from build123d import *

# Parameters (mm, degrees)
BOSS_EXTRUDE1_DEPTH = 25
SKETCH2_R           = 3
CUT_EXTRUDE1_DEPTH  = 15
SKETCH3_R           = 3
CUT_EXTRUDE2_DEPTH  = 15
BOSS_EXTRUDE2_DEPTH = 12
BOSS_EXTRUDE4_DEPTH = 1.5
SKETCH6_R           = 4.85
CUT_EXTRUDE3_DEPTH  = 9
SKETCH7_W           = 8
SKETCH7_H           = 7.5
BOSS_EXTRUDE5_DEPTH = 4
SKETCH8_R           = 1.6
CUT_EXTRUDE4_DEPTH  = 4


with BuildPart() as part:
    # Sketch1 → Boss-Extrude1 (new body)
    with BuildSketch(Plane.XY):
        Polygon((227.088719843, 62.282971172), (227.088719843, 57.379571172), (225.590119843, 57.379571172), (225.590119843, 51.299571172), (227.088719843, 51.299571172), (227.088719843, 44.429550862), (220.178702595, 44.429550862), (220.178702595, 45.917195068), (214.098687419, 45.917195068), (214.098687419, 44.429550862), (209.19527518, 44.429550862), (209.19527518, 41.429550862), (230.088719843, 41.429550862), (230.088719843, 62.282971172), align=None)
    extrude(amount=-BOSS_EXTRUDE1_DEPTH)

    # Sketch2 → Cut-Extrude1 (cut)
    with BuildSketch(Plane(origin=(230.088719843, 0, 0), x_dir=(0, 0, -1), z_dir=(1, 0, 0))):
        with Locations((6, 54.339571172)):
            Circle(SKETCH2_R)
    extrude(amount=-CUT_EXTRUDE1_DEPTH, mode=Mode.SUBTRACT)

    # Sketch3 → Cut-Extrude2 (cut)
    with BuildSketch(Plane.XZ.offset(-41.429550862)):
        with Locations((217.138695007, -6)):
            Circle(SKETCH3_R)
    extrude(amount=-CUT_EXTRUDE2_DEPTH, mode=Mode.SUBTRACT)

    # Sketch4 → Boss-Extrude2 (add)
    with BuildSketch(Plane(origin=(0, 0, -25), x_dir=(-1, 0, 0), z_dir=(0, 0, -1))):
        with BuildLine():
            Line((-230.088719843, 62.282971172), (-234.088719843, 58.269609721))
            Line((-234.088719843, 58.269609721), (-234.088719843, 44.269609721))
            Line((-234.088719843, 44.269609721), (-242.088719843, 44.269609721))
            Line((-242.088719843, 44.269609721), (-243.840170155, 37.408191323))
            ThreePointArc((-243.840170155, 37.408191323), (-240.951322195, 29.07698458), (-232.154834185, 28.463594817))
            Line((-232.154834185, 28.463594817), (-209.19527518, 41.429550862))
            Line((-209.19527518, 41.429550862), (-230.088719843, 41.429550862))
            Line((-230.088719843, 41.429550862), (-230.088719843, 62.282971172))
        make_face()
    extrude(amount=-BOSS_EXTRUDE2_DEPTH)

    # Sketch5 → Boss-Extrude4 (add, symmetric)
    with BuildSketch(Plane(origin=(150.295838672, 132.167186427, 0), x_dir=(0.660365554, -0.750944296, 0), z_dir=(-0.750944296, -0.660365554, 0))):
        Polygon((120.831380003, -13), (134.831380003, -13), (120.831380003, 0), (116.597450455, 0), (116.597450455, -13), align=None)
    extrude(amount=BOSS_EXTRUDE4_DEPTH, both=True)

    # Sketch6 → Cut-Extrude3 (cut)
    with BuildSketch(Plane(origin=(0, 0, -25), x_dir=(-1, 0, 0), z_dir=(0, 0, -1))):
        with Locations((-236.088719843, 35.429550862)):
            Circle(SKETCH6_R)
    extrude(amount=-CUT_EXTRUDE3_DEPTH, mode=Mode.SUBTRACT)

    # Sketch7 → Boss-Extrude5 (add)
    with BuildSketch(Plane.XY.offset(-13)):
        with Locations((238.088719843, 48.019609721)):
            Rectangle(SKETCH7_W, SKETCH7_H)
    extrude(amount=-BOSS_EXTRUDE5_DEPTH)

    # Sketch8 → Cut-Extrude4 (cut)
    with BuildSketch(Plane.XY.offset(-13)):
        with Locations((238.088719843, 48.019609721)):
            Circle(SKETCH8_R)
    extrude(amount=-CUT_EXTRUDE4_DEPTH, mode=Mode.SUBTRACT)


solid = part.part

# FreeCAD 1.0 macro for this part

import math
import FreeCAD as App
import Part
import Sketcher
Q = App.Units.Quantity


def add_polygon(sketch, points):
    """Adds a closed chain of lines whose ends are joined by coincident constraints."""
    first, n = sketch.GeometryCount, len(points)
    for a, b in zip(points, points[1:] + points[:1]):
        sketch.addGeometry(Part.LineSegment(App.Vector(*a, 0), App.Vector(*b, 0)), False)
    for i in range(n):
        sketch.addConstraint(Sketcher.Constraint("Coincident", first + i, 2, first + (i + 1) % n, 1))

doc = App.newDocument("Part")
body = doc.addObject("PartDesign::Body", "Body")

# Sketch on XY plane
sketch1 = body.newObject("Sketcher::SketchObject", "Sketch")
sketch1.AttachmentSupport = (doc.getObject("XY_Plane"), [""])
sketch1.MapMode = "FlatFace"
add_polygon(sketch1, [(227.1, 62.3), (227.1, 57.4), (225.6, 57.4), (225.6, 51.3), (227.1, 51.3), (227.1, 44.4), (220.2, 44.4), (220.2, 45.9), (214.1, 45.9), (214.1, 44.4), (209.2, 44.4), (209.2, 41.4), (230.1, 41.4), (230.1, 62.3)])  # lines 0-13
sketch1.addConstraint([
    Sketcher.Constraint("Vertical", 0),
    Sketcher.Constraint("Horizontal", 1),
    Sketcher.Constraint("Vertical", 2),
    Sketcher.Constraint("Horizontal", 3),
    Sketcher.Constraint("Vertical", 4),
    Sketcher.Constraint("Horizontal", 5),
    Sketcher.Constraint("Vertical", 6),
    Sketcher.Constraint("Horizontal", 7),
    Sketcher.Constraint("Vertical", 8),
    Sketcher.Constraint("Horizontal", 9),
    Sketcher.Constraint("Vertical", 10),
    Sketcher.Constraint("Horizontal", 11),
    Sketcher.Constraint("Vertical", 12),
    Sketcher.Constraint("Horizontal", 13),
    Sketcher.Constraint("Horizontal", 5, 2, 8, 2),
    Sketcher.Constraint("Vertical", 0, 2, 3, 2),
    Sketcher.Constraint("Equal", 13, 10),
    Sketcher.Constraint("DistanceX", 13, 2, 13, 1, Q("3 mm")),
    Sketcher.Constraint("DistanceY", 2, 2, 2, 1, Q("6.08 mm")),
    Sketcher.Constraint("DistanceX", 1, 2, 1, 1, Q("1.4986 mm")),
    Sketcher.Constraint("DistanceY", 0, 2, 0, 1, Q("4.9034 mm")),
    Sketcher.Constraint("DistanceY", 4, 2, 4, 1, Q("6.87002 mm")),
    Sketcher.Constraint("DistanceX", 5, 2, 5, 1, Q("6.910017 mm")),
    Sketcher.Constraint("DistanceX", 7, 2, 7, 1, Q("6.080015 mm")),
    Sketcher.Constraint("DistanceX", 9, 2, 9, 1, Q("4.903412 mm")),
    Sketcher.Constraint("DistanceY", 6, 1, 6, 2, Q("1.487644 mm")),
    Sketcher.Constraint("DistanceX", -1, 1, 0, 2, Q("227.08872 mm")),
    Sketcher.Constraint("DistanceY", -1, 1, 0, 2, Q("57.379571 mm")),
])
pad1 = body.newObject("PartDesign::Pad", "Pad")
pad1.Profile = sketch1
pad1.Length = 25
pad1.Reversed = True

# Sketch on YZ plane
sketch2 = body.newObject("Sketcher::SketchObject", "Sketch001")
sketch2.AttachmentSupport = (doc.getObject("YZ_Plane"), [""])
sketch2.MapMode = "FlatFace"
sketch2.AttachmentOffset = App.Placement(App.Vector(0, 0, 230.08872), App.Rotation())
sketch2.addGeometry(Part.Circle(App.Vector(54.3, -6, 0), App.Vector(0, 0, 1), 3), False)
sketch2.addConstraint([
    Sketcher.Constraint("Diameter", 0, Q("6 mm")),
    Sketcher.Constraint("DistanceY", 0, 3, -1, 1, Q("6 mm")),
    Sketcher.Constraint("DistanceX", -1, 1, 0, 3, Q("54.339571 mm")),
])
pocket1 = body.newObject("PartDesign::Pocket", "Pocket")
pocket1.Profile = sketch2
pocket1.Length = 15

# Sketch on XZ plane
sketch3 = body.newObject("Sketcher::SketchObject", "Sketch002")
sketch3.AttachmentSupport = (doc.getObject("XZ_Plane"), [""])
sketch3.MapMode = "FlatFace"
sketch3.AttachmentOffset = App.Placement(App.Vector(0, 0, -41.429551), App.Rotation())
sketch3.addGeometry(Part.Circle(App.Vector(217.1, -6, 0), App.Vector(0, 0, 1), 3), False)
sketch3.addConstraint([
    Sketcher.Constraint("Diameter", 0, Q("6 mm")),
    Sketcher.Constraint("DistanceY", 0, 3, -1, 1, Q("6 mm")),
    Sketcher.Constraint("DistanceX", -1, 1, 0, 3, Q("217.138695 mm")),
])
pocket2 = body.newObject("PartDesign::Pocket", "Pocket001")
pocket2.Profile = sketch3
pocket2.Length = 15

# Sketch on XY plane
sketch4 = body.newObject("Sketcher::SketchObject", "Sketch003")
sketch4.AttachmentSupport = (doc.getObject("XY_Plane"), [""])
sketch4.MapMode = "FlatFace"
sketch4.AttachmentOffset = App.Placement(App.Vector(0, 0, -25), App.Rotation())
sketch4.addGeometry([
    Part.LineSegment(App.Vector(230, 62, 0), App.Vector(234, 58, 0)),  # 0
    Part.LineSegment(App.Vector(234, 58, 0), App.Vector(234, 44, 0)),  # 1
    Part.LineSegment(App.Vector(234, 44, 0), App.Vector(242, 44, 0)),  # 2
    Part.LineSegment(App.Vector(242, 44, 0), App.Vector(244, 37, 0)),  # 3
    Part.ArcOfCircle(Part.Circle(App.Vector(236, 35, 0), App.Vector(0, 0, 1), 8), math.radians(-119), math.radians(14)),  # 4
    Part.LineSegment(App.Vector(232, 28, 0), App.Vector(209, 41, 0)),  # 5
    Part.LineSegment(App.Vector(209, 41, 0), App.Vector(230, 41, 0)),  # 6
    Part.LineSegment(App.Vector(230, 41, 0), App.Vector(230, 62, 0)),  # 7
], False)
sketch4.addConstraint([
    Sketcher.Constraint("Coincident", 0, 2, 1, 1),
    Sketcher.Constraint("Coincident", 1, 2, 2, 1),
    Sketcher.Constraint("Coincident", 2, 2, 3, 1),
    Sketcher.Constraint("Tangent", 3, 2, 4, 2),
    Sketcher.Constraint("Tangent", 4, 1, 5, 1),
    Sketcher.Constraint("Coincident", 5, 2, 6, 1),
    Sketcher.Constraint("Coincident", 6, 2, 7, 1),
    Sketcher.Constraint("Coincident", 7, 2, 0, 1),
    Sketcher.Constraint("Vertical", 1),
    Sketcher.Constraint("Horizontal", 2),
    Sketcher.Constraint("Horizontal", 6),
    Sketcher.Constraint("Vertical", 7),
    Sketcher.Constraint("Radius", 4, Q("8 mm")),
    Sketcher.Constraint("DistanceX", 2, 1, 2, 2, Q("8 mm")),
    Sketcher.Constraint("DistanceY", 1, 2, 1, 1, Q("14 mm")),
    Sketcher.Constraint("DistanceX", 0, 2, 4, 3, Q("2 mm")),
    Sketcher.Constraint("DistanceY", 4, 3, 5, 2, Q("6 mm")),
    Sketcher.Constraint("DistanceX", 6, 2, 1, 2, Q("4 mm")),
    Sketcher.Constraint("DistanceY", 7, 1, 7, 2, Q("20.85342 mm")),
    Sketcher.Constraint("Distance", 0, Q("5.66631 mm")),
    Sketcher.Constraint("DistanceX", 6, 1, 6, 2, Q("20.893445 mm")),
    Sketcher.Constraint("DistanceX", -1, 1, 4, 3, Q("236.08872 mm")),
    Sketcher.Constraint("DistanceY", -1, 1, 4, 3, Q("35.429551 mm")),
])
pad2 = body.newObject("PartDesign::Pad", "Pad001")
pad2.Profile = sketch4
pad2.Length = 12

# Sketch on an angled plane
sketch5 = body.newObject("Sketcher::SketchObject", "Sketch004")
sketch5.Placement = App.Placement(App.Vector(150.295839, 132.167186, 0), App.Rotation(App.Vector(0.660365554, -0.750944296, 0), App.Vector(0, 0, 1.000000001), App.Vector(-0.750944296, -0.660365554, 0), "ZXY"))
add_polygon(sketch5, [(134.8, -13), (120.8, 0), (116.6, 0), (116.6, -13)])  # lines 0-3
sketch5.addConstraint([
    Sketcher.Constraint("Horizontal", 1),
    Sketcher.Constraint("Vertical", 2),
    Sketcher.Constraint("Horizontal", 3),
    Sketcher.Constraint("PointOnObject", 0, 2, -1),
    Sketcher.Constraint("DistanceY", 2, 2, 2, 1, Q("13 mm")),
    Sketcher.Constraint("DistanceX", 0, 2, 3, 2, Q("14 mm")),
    Sketcher.Constraint("DistanceX", 1, 2, 1, 1, Q("4.23393 mm")),
    Sketcher.Constraint("DistanceX", -1, 1, 0, 2, Q("120.83138 mm")),
])
pad3 = body.newObject("PartDesign::Pad", "Pad002")
pad3.Profile = sketch5
pad3.Length = 3
pad3.Midplane = True

# Sketch on XY plane
sketch6 = body.newObject("Sketcher::SketchObject", "Sketch005")
sketch6.AttachmentSupport = (doc.getObject("XY_Plane"), [""])
sketch6.MapMode = "FlatFace"
sketch6.AttachmentOffset = App.Placement(App.Vector(0, 0, -25), App.Rotation())
sketch6.addGeometry(Part.Circle(App.Vector(236.1, 35.4, 0), App.Vector(0, 0, 1), 4.8), False)
sketch6.addConstraint([
    Sketcher.Constraint("Diameter", 0, Q("9.7 mm")),
    Sketcher.Constraint("DistanceX", -1, 1, 0, 3, Q("236.08872 mm")),
    Sketcher.Constraint("DistanceY", -1, 1, 0, 3, Q("35.429551 mm")),
])
pocket3 = body.newObject("PartDesign::Pocket", "Pocket002")
pocket3.Profile = sketch6
pocket3.Length = 9
pocket3.Reversed = True

# Sketch on XY plane
sketch7 = body.newObject("Sketcher::SketchObject", "Sketch006")
sketch7.AttachmentSupport = (doc.getObject("XY_Plane"), [""])
sketch7.MapMode = "FlatFace"
sketch7.AttachmentOffset = App.Placement(App.Vector(0, 0, -13), App.Rotation())
add_polygon(sketch7, [(234, 52), (234, 44), (242, 44), (242, 52)])  # lines 0-3
sketch7.addConstraint([
    Sketcher.Constraint("Vertical", 0),
    Sketcher.Constraint("Horizontal", 1),
    Sketcher.Constraint("Vertical", 2),
    Sketcher.Constraint("Horizontal", 3),
    Sketcher.Constraint("DistanceX", 1, 1, 1, 2, Q("8 mm")),
    Sketcher.Constraint("DistanceY", 0, 2, 0, 1, Q("7.5 mm")),
    Sketcher.Constraint("DistanceX", -1, 1, 0, 2, Q("234.08872 mm")),
    Sketcher.Constraint("DistanceY", -1, 1, 0, 2, Q("44.26961 mm")),
])
pad4 = body.newObject("PartDesign::Pad", "Pad003")
pad4.Profile = sketch7
pad4.Length = 4
pad4.Reversed = True

# Sketch on XY plane
sketch8 = body.newObject("Sketcher::SketchObject", "Sketch007")
sketch8.AttachmentSupport = (doc.getObject("XY_Plane"), [""])
sketch8.MapMode = "FlatFace"
sketch8.AttachmentOffset = App.Placement(App.Vector(0, 0, -13), App.Rotation())
sketch8.addGeometry(Part.Circle(App.Vector(238.1, 48, 0), App.Vector(0, 0, 1), 1.6), False)
sketch8.addConstraint([
    Sketcher.Constraint("Diameter", 0, Q("3.2 mm")),
    Sketcher.Constraint("DistanceX", -1, 1, 0, 3, Q("238.08872 mm")),
    Sketcher.Constraint("DistanceY", -1, 1, 0, 3, Q("48.01961 mm")),
])
pocket4 = body.newObject("PartDesign::Pocket", "Pocket003")
pocket4.Profile = sketch8
pocket4.Length = 4

doc.recompute()
